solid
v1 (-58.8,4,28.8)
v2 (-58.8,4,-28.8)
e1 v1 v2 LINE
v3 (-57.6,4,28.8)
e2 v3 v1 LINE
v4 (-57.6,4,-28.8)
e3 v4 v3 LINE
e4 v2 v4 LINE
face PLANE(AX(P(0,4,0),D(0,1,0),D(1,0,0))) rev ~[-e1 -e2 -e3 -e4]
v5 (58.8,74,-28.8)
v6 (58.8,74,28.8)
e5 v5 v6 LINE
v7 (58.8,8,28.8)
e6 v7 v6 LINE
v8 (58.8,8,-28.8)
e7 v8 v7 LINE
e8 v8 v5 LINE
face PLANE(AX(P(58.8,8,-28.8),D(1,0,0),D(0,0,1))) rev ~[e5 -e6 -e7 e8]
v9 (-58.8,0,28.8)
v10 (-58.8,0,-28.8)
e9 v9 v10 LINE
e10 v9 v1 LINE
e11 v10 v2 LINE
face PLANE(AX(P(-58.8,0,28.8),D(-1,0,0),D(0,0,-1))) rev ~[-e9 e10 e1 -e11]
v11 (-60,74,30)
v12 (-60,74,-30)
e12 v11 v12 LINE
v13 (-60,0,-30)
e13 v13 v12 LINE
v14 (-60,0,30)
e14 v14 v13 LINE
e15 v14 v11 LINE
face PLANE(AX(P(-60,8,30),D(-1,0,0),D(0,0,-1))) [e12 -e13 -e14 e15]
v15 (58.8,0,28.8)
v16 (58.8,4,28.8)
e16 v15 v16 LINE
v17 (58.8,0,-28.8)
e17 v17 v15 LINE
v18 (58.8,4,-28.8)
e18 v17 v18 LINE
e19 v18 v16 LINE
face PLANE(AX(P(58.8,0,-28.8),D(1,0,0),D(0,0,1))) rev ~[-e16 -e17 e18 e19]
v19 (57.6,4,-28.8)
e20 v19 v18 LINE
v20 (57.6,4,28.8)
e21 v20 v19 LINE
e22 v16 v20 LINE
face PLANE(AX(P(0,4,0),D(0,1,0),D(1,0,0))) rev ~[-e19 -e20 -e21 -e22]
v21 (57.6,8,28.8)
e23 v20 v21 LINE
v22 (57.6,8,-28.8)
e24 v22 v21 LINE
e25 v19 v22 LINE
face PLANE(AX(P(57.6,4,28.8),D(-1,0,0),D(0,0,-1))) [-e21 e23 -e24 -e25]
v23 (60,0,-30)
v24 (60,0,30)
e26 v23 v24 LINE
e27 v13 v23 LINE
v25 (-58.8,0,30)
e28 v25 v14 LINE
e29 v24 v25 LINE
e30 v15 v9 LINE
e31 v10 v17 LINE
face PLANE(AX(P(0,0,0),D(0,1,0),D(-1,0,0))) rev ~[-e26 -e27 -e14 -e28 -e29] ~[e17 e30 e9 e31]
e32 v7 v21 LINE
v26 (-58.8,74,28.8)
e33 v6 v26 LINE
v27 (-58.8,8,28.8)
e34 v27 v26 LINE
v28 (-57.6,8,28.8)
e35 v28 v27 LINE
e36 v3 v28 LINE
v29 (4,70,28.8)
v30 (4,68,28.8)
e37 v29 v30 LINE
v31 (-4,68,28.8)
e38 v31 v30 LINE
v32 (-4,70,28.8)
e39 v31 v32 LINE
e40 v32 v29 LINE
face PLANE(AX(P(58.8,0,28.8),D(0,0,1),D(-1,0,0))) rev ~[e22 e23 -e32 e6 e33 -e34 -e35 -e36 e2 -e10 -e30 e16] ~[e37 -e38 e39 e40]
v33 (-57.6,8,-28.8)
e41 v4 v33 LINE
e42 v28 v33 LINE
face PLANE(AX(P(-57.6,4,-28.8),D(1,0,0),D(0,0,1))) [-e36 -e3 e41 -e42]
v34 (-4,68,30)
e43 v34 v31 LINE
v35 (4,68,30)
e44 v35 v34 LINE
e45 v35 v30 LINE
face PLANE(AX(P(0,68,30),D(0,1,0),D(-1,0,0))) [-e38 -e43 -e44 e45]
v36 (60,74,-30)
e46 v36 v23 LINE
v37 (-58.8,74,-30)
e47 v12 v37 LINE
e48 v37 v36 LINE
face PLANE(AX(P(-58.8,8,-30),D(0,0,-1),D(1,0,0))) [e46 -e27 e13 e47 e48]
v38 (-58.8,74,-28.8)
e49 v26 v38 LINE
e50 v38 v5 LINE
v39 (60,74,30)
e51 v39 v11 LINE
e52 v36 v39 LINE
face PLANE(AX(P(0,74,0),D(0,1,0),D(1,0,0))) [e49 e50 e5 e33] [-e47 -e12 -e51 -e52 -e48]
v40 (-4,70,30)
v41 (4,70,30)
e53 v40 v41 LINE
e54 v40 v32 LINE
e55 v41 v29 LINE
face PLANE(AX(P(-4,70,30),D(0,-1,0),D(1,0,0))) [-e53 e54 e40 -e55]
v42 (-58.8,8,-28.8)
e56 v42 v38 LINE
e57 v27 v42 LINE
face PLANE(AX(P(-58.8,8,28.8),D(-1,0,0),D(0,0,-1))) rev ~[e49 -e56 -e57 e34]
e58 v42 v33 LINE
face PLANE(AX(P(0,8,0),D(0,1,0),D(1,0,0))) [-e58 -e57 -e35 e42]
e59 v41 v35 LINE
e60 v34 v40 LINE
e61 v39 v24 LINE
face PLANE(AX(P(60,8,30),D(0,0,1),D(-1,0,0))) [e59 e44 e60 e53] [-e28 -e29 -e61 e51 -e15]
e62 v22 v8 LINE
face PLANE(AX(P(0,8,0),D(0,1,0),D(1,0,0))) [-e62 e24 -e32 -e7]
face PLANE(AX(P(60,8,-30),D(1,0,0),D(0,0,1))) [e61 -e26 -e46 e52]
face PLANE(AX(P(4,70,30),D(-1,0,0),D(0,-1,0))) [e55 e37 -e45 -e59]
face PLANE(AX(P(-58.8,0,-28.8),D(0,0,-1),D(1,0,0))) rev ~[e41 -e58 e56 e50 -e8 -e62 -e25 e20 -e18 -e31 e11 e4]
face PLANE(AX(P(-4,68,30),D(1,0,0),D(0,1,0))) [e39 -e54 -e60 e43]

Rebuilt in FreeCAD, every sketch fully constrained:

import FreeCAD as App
import Part
import Sketcher

V = App.Vector


def add_polygon(sketch, points):
    """Adds a closed chain of lines whose ends are joined by coincident constraints."""
    first, n = sketch.GeometryCount, len(points)
    for a, b in zip(points, points[1:] + points[:1]):
        sketch.addGeometry(Part.LineSegment(App.Vector(*a, 0), App.Vector(*b, 0)), False)
    for i in range(n):
        sketch.addConstraint(Sketcher.Constraint("Coincident", first + i, 2, first + (i + 1) % n, 1))

doc = App.newDocument("Part")
body = doc.addObject("PartDesign::Body", "Body")

sketch1 = doc.addObject("Sketcher::SketchObject", "Sketch")
body.addObject(sketch1)
sketch1.AttachmentSupport = (doc.XZ_Plane, [""])
sketch1.MapMode = "FlatFace"
add_polygon(sketch1, [(-60, 30), (-58.8, 30), (60, 30), (60, -30), (-60, -30)])
add_polygon(sketch1, [(-58.8, 28.8), (-58.8, -28.8), (58.8, -28.8), (58.8, 28.8)])
sketch1.addConstraint(Sketcher.Constraint("Horizontal", 0))
sketch1.addConstraint(Sketcher.Constraint("Horizontal", 1))
sketch1.addConstraint(Sketcher.Constraint("Vertical", 2))
sketch1.addConstraint(Sketcher.Constraint("Horizontal", 3))
sketch1.addConstraint(Sketcher.Constraint("Vertical", 4))
sketch1.addConstraint(Sketcher.Constraint("Vertical", 5))
sketch1.addConstraint(Sketcher.Constraint("Horizontal", 6))
sketch1.addConstraint(Sketcher.Constraint("Vertical", 7))
sketch1.addConstraint(Sketcher.Constraint("Horizontal", 8))
sketch1.addConstraint(Sketcher.Constraint("Symmetric", 1, 2, 3, 2, -1, 1))
sketch1.addConstraint(Sketcher.Constraint("Symmetric", 5, 2, 7, 2, -1, 1))
sketch1.addConstraint(Sketcher.Constraint("Vertical", 0, 2, 5, 2))
sketch1.addConstraint(Sketcher.Constraint("DistanceX", 3, 2, 3, 1, 120.0))
sketch1.addConstraint(Sketcher.Constraint("DistanceY", 2, 2, 2, 1, 60.0))
sketch1.addConstraint(Sketcher.Constraint("DistanceX", 6, 1, 6, 2, 117.6))
sketch1.addConstraint(Sketcher.Constraint("DistanceY", 5, 2, 5, 1, 57.6))
pad1 = doc.addObject("PartDesign::Pad", "Pad")
body.addObject(pad1)
pad1.Profile = sketch1
pad1.Length = 4
pad1.Reversed = True

sketch2 = doc.addObject("Sketcher::SketchObject", "Sketch001")
body.addObject(sketch2)
sketch2.AttachmentSupport = (doc.XZ_Plane, [""])
sketch2.MapMode = "FlatFace"
sketch2.AttachmentOffset = App.Placement(V(0, 0, -4), App.Rotation())
add_polygon(sketch2, [(-57.6, -30), (-60, -30), (-60, 30), (60, 30), (60, -30)])
add_polygon(sketch2, [(-57.6, 27.6), (-57.6, -27.6), (57.6, -27.6), (57.6, 27.6)])
sketch2.addConstraint(Sketcher.Constraint("Horizontal", 0))
sketch2.addConstraint(Sketcher.Constraint("Vertical", 1))
sketch2.addConstraint(Sketcher.Constraint("Horizontal", 2))
sketch2.addConstraint(Sketcher.Constraint("Vertical", 3))
sketch2.addConstraint(Sketcher.Constraint("Horizontal", 4))
sketch2.addConstraint(Sketcher.Constraint("Vertical", 5))
sketch2.addConstraint(Sketcher.Constraint("Horizontal", 6))
sketch2.addConstraint(Sketcher.Constraint("Vertical", 7))
sketch2.addConstraint(Sketcher.Constraint("Horizontal", 8))
sketch2.addConstraint(Sketcher.Constraint("Symmetric", 0, 2, 2, 2, -1, 1))
sketch2.addConstraint(Sketcher.Constraint("Symmetric", 5, 2, 7, 2, -1, 1))
sketch2.addConstraint(Sketcher.Constraint("Vertical", 4, 2, 5, 2))
sketch2.addConstraint(Sketcher.Constraint("DistanceX", 2, 1, 2, 2, 120.0))
sketch2.addConstraint(Sketcher.Constraint("DistanceY", 1, 1, 1, 2, 60.0))
sketch2.addConstraint(Sketcher.Constraint("DistanceX", 6, 1, 6, 2, 115.2))
sketch2.addConstraint(Sketcher.Constraint("DistanceY", 5, 2, 5, 1, 55.2))
pad2 = doc.addObject("PartDesign::Pad", "Pad001")
body.addObject(pad2)
pad2.Profile = sketch2
pad2.Length = 4
pad2.Reversed = True

sketch3 = doc.addObject("Sketcher::SketchObject", "Sketch002")
body.addObject(sketch3)
sketch3.AttachmentSupport = (doc.XZ_Plane, [""])
sketch3.MapMode = "FlatFace"
sketch3.AttachmentOffset = App.Placement(V(0, 0, -8), App.Rotation())
add_polygon(sketch3, [(60, -30), (-58.8, -30), (-60, -30), (-60, 30), (60, 30)])
add_polygon(sketch3, [(-58.8, 28.8), (-58.8, -28.8), (58.8, -28.8), (58.8, 28.8)])
sketch3.addConstraint(Sketcher.Constraint("Horizontal", 0))
sketch3.addConstraint(Sketcher.Constraint("Horizontal", 1))
sketch3.addConstraint(Sketcher.Constraint("Vertical", 2))
sketch3.addConstraint(Sketcher.Constraint("Horizontal", 3))
sketch3.addConstraint(Sketcher.Constraint("Vertical", 4))
sketch3.addConstraint(Sketcher.Constraint("Vertical", 5))
sketch3.addConstraint(Sketcher.Constraint("Horizontal", 6))
sketch3.addConstraint(Sketcher.Constraint("Vertical", 7))
sketch3.addConstraint(Sketcher.Constraint("Horizontal", 8))
sketch3.addConstraint(Sketcher.Constraint("Symmetric", 1, 2, 3, 2, -1, 1))
sketch3.addConstraint(Sketcher.Constraint("Symmetric", 5, 2, 7, 2, -1, 1))
sketch3.addConstraint(Sketcher.Constraint("Vertical", 0, 2, 5, 2))
sketch3.addConstraint(Sketcher.Constraint("DistanceX", 3, 1, 3, 2, 120.0))
sketch3.addConstraint(Sketcher.Constraint("DistanceY", 2, 1, 2, 2, 60.0))
sketch3.addConstraint(Sketcher.Constraint("DistanceX", 6, 1, 6, 2, 117.6))
sketch3.addConstraint(Sketcher.Constraint("DistanceY", 5, 2, 5, 1, 57.6))
pad3 = doc.addObject("PartDesign::Pad", "Pad002")
body.addObject(pad3)
pad3.Profile = sketch3
pad3.Length = 66
pad3.Reversed = True

sketch4 = doc.addObject("Sketcher::SketchObject", "Sketch003")
body.addObject(sketch4)
sketch4.AttachmentSupport = (doc.XZ_Plane, [""])
sketch4.MapMode = "FlatFace"
sketch4.AttachmentOffset = App.Placement(V(0, 0, -4), App.Rotation())
add_polygon(sketch4, [(-57.6, -28.8), (57.6, -28.8), (57.6, 28.8), (-57.6, 28.8)])
sketch4.addConstraint(Sketcher.Constraint("Horizontal", 0))
sketch4.addConstraint(Sketcher.Constraint("Vertical", 1))
sketch4.addConstraint(Sketcher.Constraint("Horizontal", 2))
sketch4.addConstraint(Sketcher.Constraint("Vertical", 3))
sketch4.addConstraint(Sketcher.Constraint("Symmetric", 0, 2, 2, 2, -1, 1))
sketch4.addConstraint(Sketcher.Constraint("DistanceX", 0, 1, 0, 2, 115.2))
sketch4.addConstraint(Sketcher.Constraint("DistanceY", 1, 1, 1, 2, 57.6))
pocket1 = doc.addObject("PartDesign::Pocket", "Pocket")
body.addObject(pocket1)
pocket1.Profile = sketch4
pocket1.Type = "ThroughAll"

sketch5 = doc.addObject("Sketcher::SketchObject", "Sketch004")
body.addObject(sketch5)
sketch5.AttachmentSupport = (doc.XY_Plane, [""])
sketch5.MapMode = "FlatFace"
sketch5.AttachmentOffset = App.Placement(V(0, 0, 30), App.Rotation())
add_polygon(sketch5, [(-4, 68), (4, 68), (4, 70), (-4, 70)])
sketch5.addConstraint(Sketcher.Constraint("Horizontal", 0))
sketch5.addConstraint(Sketcher.Constraint("Vertical", 1))
sketch5.addConstraint(Sketcher.Constraint("Horizontal", 2))
sketch5.addConstraint(Sketcher.Constraint("Vertical", 3))
sketch5.addConstraint(Sketcher.Constraint("DistanceX", 0, 1, 0, 2, 8.0))
sketch5.addConstraint(Sketcher.Constraint("DistanceY", 1, 1, 1, 2, 2.0))
sketch5.addConstraint(Sketcher.Constraint("DistanceX", -1, 1, 0, 2, 4.0))
sketch5.addConstraint(Sketcher.Constraint("DistanceY", -1, 1, 0, 2, 68.0))
pocket2 = doc.addObject("PartDesign::Pocket", "Pocket001")
body.addObject(pocket2)
pocket2.Profile = sketch5
pocket2.Length = 10

doc.recompute()
